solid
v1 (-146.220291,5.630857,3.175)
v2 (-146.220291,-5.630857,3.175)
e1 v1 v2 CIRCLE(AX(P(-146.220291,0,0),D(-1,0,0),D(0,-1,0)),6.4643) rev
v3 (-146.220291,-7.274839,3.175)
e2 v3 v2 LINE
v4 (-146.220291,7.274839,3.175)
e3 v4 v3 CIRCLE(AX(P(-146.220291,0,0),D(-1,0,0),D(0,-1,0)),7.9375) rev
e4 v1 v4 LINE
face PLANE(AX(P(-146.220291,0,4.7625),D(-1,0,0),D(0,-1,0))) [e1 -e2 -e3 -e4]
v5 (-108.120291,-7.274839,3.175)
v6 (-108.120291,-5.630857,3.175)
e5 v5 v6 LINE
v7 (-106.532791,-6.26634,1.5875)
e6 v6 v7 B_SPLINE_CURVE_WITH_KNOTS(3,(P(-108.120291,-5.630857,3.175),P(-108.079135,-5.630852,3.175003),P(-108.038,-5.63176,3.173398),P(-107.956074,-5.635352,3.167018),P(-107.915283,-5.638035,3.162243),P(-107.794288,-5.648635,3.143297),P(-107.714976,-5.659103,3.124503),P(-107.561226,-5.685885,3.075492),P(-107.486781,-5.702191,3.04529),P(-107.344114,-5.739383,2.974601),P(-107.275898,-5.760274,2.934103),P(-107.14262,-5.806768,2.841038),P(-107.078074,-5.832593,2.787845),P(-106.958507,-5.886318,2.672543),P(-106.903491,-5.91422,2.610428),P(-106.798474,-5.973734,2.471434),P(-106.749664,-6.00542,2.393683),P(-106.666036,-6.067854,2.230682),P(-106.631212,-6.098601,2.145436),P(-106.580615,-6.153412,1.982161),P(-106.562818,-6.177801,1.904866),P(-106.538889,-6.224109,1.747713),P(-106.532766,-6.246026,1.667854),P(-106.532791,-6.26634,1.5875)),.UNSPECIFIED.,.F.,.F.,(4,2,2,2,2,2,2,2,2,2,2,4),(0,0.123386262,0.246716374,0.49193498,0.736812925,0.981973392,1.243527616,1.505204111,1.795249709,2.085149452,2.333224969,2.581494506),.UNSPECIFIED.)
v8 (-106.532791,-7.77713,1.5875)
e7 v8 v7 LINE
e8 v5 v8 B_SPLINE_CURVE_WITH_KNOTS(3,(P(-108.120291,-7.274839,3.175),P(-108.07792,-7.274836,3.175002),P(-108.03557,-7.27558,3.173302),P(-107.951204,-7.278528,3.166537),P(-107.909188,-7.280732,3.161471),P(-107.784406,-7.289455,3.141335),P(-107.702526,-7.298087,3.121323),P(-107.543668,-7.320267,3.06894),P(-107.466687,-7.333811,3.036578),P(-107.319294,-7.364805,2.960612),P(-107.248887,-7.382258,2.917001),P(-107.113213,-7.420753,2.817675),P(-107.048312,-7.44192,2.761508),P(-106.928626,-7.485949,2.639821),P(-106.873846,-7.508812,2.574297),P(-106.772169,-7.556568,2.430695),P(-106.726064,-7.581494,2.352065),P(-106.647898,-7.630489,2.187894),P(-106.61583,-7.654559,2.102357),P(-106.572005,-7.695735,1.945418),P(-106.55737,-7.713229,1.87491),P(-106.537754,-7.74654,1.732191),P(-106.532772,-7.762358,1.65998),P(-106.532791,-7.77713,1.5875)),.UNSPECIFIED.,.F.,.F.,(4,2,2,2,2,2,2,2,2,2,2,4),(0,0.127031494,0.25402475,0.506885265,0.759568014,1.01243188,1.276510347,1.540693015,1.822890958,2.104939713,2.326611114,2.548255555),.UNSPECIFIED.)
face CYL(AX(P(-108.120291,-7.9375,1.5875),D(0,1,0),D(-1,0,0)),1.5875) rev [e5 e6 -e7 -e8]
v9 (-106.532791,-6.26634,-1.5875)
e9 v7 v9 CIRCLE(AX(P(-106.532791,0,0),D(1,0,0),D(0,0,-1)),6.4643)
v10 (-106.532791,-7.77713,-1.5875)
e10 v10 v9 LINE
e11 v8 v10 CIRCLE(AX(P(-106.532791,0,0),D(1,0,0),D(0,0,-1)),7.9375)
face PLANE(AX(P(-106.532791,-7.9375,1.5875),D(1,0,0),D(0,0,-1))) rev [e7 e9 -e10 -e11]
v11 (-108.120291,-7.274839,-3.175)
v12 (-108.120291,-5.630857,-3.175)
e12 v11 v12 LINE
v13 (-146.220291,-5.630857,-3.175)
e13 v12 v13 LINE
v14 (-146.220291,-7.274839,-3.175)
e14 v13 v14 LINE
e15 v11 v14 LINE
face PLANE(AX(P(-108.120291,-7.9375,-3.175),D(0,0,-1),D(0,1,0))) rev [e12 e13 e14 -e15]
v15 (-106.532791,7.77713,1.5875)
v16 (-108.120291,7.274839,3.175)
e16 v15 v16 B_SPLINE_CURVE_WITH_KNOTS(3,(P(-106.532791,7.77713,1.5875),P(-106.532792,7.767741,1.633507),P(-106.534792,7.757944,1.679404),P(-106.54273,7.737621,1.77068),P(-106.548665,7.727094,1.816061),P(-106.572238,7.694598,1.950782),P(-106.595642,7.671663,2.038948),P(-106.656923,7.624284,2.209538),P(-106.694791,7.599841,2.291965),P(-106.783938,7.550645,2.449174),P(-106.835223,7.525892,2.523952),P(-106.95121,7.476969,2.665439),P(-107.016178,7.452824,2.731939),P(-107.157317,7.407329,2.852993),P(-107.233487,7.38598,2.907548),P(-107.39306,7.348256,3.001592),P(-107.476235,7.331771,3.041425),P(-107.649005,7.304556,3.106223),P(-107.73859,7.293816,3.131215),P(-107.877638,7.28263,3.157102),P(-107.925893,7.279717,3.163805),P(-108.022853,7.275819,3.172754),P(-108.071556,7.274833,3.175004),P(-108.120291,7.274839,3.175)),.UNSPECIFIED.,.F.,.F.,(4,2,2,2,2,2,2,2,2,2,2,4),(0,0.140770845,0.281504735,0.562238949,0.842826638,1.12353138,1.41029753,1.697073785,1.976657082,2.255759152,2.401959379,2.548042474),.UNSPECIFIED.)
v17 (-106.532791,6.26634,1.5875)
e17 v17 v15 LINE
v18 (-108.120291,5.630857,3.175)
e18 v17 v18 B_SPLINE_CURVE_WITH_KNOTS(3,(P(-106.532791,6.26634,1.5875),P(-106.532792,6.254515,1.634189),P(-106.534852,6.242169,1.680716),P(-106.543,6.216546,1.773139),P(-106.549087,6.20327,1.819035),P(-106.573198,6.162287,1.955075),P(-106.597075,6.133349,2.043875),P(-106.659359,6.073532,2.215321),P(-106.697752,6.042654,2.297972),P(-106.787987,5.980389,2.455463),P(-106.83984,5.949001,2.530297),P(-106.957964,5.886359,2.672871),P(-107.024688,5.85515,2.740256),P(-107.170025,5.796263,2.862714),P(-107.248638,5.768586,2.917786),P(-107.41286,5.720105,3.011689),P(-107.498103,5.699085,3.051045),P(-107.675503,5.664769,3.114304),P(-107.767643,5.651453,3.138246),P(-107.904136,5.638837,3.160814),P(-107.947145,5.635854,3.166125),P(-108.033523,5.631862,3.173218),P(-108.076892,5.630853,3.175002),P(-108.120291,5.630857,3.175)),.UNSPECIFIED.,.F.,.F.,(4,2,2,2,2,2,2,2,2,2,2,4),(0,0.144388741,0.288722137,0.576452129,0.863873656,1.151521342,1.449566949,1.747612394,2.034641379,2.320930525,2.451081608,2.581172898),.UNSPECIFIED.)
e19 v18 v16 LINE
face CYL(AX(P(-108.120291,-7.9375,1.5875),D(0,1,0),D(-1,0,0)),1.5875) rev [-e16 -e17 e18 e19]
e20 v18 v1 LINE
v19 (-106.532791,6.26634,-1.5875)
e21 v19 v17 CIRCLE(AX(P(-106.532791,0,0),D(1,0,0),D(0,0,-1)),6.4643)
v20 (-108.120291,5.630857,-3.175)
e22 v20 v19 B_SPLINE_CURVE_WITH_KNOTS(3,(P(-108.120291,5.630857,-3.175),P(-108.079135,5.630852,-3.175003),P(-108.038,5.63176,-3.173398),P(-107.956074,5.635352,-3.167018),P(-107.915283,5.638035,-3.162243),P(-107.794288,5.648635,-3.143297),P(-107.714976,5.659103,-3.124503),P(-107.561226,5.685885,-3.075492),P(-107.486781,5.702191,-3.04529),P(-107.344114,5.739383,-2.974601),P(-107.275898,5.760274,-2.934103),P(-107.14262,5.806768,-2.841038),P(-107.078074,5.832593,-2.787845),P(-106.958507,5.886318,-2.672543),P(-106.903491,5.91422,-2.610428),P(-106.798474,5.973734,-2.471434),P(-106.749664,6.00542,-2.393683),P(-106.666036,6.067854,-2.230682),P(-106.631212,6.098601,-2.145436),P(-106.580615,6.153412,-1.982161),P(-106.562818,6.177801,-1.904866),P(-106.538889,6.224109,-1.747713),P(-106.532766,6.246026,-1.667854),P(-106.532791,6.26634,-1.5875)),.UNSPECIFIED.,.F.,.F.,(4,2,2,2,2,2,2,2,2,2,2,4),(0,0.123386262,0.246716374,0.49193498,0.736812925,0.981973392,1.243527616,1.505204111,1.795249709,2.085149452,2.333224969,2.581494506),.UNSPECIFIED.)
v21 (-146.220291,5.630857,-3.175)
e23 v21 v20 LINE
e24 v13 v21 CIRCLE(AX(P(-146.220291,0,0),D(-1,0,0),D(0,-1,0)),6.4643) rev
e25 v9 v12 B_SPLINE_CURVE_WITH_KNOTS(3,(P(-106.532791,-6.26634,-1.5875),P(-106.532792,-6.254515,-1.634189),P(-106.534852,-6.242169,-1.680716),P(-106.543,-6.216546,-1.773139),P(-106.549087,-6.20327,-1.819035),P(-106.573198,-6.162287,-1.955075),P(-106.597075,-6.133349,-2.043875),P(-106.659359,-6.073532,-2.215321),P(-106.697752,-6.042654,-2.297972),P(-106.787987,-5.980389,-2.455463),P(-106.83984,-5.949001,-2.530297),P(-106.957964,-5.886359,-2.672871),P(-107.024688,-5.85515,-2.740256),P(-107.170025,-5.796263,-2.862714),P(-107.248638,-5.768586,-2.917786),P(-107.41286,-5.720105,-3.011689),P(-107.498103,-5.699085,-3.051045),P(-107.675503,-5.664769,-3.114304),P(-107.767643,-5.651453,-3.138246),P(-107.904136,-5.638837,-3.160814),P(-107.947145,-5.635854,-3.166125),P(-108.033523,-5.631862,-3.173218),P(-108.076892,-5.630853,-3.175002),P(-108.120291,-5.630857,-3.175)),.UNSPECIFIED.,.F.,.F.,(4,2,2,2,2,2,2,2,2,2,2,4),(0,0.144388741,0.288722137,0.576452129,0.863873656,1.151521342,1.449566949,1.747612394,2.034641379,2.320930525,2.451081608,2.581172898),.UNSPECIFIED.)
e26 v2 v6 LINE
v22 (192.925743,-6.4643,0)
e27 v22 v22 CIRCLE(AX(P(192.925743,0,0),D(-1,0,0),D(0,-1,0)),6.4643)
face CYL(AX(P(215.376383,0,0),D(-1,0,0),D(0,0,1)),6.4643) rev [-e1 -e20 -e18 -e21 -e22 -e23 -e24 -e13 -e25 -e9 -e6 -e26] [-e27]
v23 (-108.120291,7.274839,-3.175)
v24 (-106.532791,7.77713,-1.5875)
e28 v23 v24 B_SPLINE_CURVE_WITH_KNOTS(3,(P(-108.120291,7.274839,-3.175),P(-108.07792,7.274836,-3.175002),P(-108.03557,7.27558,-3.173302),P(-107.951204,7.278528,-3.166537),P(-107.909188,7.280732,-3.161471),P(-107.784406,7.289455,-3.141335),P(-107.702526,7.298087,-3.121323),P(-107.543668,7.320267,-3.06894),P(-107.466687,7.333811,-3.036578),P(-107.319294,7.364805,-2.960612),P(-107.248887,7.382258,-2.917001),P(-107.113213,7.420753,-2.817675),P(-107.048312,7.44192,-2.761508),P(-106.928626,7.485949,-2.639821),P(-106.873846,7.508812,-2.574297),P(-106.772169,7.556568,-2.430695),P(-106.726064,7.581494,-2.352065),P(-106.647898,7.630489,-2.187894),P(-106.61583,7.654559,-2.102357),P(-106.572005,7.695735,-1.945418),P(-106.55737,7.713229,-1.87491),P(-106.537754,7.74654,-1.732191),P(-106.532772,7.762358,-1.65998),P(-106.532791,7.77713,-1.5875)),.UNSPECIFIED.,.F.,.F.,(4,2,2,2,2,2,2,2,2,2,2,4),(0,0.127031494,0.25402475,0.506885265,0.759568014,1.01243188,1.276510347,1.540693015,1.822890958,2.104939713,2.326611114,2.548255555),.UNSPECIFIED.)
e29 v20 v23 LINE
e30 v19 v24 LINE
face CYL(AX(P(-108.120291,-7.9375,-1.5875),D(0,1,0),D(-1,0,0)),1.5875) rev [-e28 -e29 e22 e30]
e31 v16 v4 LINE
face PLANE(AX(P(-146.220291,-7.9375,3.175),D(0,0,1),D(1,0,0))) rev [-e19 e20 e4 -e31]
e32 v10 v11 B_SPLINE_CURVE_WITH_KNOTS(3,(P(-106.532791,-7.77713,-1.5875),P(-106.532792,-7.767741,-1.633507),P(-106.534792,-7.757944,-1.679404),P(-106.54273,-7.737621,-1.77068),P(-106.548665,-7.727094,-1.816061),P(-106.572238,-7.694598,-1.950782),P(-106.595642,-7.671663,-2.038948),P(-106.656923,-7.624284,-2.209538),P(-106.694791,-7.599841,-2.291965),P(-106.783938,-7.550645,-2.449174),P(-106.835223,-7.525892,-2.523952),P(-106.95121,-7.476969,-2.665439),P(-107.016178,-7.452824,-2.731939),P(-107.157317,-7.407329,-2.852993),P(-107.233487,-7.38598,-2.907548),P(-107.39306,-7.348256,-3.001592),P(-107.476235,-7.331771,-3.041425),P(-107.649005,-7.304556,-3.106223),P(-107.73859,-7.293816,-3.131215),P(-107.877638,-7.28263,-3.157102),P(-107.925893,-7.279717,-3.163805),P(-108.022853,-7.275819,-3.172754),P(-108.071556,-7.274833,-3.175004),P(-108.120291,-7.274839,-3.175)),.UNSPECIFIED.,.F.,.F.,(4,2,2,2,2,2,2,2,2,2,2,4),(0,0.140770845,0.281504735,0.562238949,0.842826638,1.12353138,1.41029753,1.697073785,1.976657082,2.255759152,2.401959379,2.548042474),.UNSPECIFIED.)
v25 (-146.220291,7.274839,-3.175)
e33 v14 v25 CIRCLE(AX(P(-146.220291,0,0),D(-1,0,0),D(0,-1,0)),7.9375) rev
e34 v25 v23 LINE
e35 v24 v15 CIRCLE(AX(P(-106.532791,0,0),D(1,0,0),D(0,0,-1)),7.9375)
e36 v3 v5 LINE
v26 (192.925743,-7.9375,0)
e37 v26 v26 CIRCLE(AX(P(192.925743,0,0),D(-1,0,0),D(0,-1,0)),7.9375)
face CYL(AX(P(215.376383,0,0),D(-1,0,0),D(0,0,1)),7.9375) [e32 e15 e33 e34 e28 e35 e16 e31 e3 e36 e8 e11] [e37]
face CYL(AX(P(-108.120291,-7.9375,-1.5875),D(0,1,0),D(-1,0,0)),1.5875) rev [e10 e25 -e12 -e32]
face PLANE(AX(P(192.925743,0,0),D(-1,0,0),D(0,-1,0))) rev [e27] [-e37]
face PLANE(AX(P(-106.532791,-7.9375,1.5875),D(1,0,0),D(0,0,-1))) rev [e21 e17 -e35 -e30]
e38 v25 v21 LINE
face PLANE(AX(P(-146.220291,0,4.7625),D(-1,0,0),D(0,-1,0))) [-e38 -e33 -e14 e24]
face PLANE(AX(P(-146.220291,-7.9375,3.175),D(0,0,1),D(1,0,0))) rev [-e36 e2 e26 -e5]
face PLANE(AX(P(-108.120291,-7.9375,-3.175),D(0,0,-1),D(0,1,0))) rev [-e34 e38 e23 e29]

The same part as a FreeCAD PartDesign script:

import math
import FreeCAD as App
import Part
import Sketcher
from FreeCAD import Vector
Q = App.Units.Quantity

doc = App.newDocument("Part")
params = doc.addObject("Spreadsheet::Sheet", "Params")
for row, (alias, value) in enumerate([
    ("sketch1_diameter", "0.625 in"),
    ("sketch1_diameter2", "0.509 in"),
    ("pad1_length", "192.925743 mm"),
    ("pad1_length2", "146.220291 mm"),
    ("sketch2_width", "1.5 in"),
    ("sketch2_radius", "0.0625 in"),
    ("sketch2_height", "0.25 in"),
], start=1):
    params.set(f"A{row}", alias)
    params.set(f"B{row}", "=" + value)
    params.setAlias(f"B{row}", alias)

body = doc.addObject("PartDesign::Body", "Body")

# Sketch on YZ plane
sketch1 = body.newObject("Sketcher::SketchObject", "Sketch")
sketch1.AttachmentSupport = (doc.getObject("YZ_Plane"), [""])
sketch1.MapMode = "FlatFace"
sketch1.addGeometry(Part.Circle(Vector(0, 0, 0), Vector(0, 0, 1), 8), False)
sketch1.addGeometry(Part.Circle(Vector(0, 0, 0), Vector(0, 0, 1), 6), False)
sketch1.addConstraint(Sketcher.Constraint("Coincident", 0, 3, -1, 1))
sketch1.addConstraint(Sketcher.Constraint("Coincident", 1, 3, -1, 1))
sketch1.addConstraint(Sketcher.Constraint("Diameter", 0, Q("0.625 in")))
sketch1.addConstraint(Sketcher.Constraint("Diameter", 1, Q("0.509 in")))
sketch1.setExpression("Constraints[2]", "Params.sketch1_diameter")
sketch1.setExpression("Constraints[3]", "Params.sketch1_diameter2")
pad1 = body.newObject("PartDesign::Pad", "Pad")
pad1.Profile = sketch1
pad1.Type = "TwoLengths"
pad1.setExpression("Length", "Params.pad1_length")
pad1.setExpression("Length2", "Params.pad1_length2")

# Sketch on XZ plane
sketch2 = body.newObject("Sketcher::SketchObject", "Sketch001")
sketch2.AttachmentSupport = (doc.getObject("XZ_Plane"), [""])
sketch2.MapMode = "FlatFace"
sketch2.AttachmentOffset = App.Placement(Vector(0, 0, -0.3125 * 25.4), App.Rotation())
sketch2.addGeometry(Part.LineSegment(Vector(-146.2, 3.2, 0), Vector(-108.1, 3.2, 0)), False)
sketch2.addGeometry(Part.ArcOfCircle(Part.Circle(Vector(-108.1, 1.6, 0), Vector(0, 0, 1), 1.6), math.radians(0), math.radians(90)), False)
sketch2.addGeometry(Part.LineSegment(Vector(-106.5, 1.6, 0), Vector(-106.5, -1.6, 0)), False)
sketch2.addGeometry(Part.ArcOfCircle(Part.Circle(Vector(-108.1, -1.6, 0), Vector(0, 0, 1), 1.6), math.radians(-90), math.radians(0)), False)
sketch2.addGeometry(Part.LineSegment(Vector(-108.1, -3.2, 0), Vector(-146.2, -3.2, 0)), False)
sketch2.addGeometry(Part.LineSegment(Vector(-146.2, -3.2, 0), Vector(-146.2, 3.2, 0)), False)
sketch2.addConstraint(Sketcher.Constraint("Tangent", 0, 2, 1, 2))
sketch2.addConstraint(Sketcher.Constraint("Tangent", 1, 1, 2, 1))
sketch2.addConstraint(Sketcher.Constraint("Tangent", 2, 2, 3, 2))
sketch2.addConstraint(Sketcher.Constraint("Tangent", 3, 1, 4, 1))
sketch2.addConstraint(Sketcher.Constraint("Coincident", 4, 2, 5, 1))
sketch2.addConstraint(Sketcher.Constraint("Coincident", 5, 2, 0, 1))
sketch2.addConstraint(Sketcher.Constraint("Horizontal", 0))
sketch2.addConstraint(Sketcher.Constraint("Vertical", 2))
sketch2.addConstraint(Sketcher.Constraint("Horizontal", 4))
sketch2.addConstraint(Sketcher.Constraint("Vertical", 5))
sketch2.addConstraint(Sketcher.Constraint("Equal", 1, 3))
sketch2.addConstraint(Sketcher.Constraint("DistanceX", 0, 1, 0, 2, Q("1.5 in")))
sketch2.addConstraint(Sketcher.Constraint("Radius", 1, Q("0.0625 in")))
sketch2.addConstraint(Sketcher.Constraint("DistanceY", 5, 1, 5, 2, Q("0.25 in")))
sketch2.addConstraint(Sketcher.Constraint("DistanceY", -1, 1, 1, 3, Q("0.0625 in")))
sketch2.addConstraint(Sketcher.Constraint("DistanceX", 1, 3, -1, 1, 108.120291))
sketch2.setExpression("Constraints[11]", "Params.sketch2_width")
sketch2.setExpression("Constraints[12]", "Params.sketch2_radius")
sketch2.setExpression("Constraints[13]", "Params.sketch2_height")
pocket1 = body.newObject("PartDesign::Pocket", "Pocket")
pocket1.Profile = sketch2
pocket1.Type = "ThroughAll"
pocket1.Reversed = True

doc.recompute()
